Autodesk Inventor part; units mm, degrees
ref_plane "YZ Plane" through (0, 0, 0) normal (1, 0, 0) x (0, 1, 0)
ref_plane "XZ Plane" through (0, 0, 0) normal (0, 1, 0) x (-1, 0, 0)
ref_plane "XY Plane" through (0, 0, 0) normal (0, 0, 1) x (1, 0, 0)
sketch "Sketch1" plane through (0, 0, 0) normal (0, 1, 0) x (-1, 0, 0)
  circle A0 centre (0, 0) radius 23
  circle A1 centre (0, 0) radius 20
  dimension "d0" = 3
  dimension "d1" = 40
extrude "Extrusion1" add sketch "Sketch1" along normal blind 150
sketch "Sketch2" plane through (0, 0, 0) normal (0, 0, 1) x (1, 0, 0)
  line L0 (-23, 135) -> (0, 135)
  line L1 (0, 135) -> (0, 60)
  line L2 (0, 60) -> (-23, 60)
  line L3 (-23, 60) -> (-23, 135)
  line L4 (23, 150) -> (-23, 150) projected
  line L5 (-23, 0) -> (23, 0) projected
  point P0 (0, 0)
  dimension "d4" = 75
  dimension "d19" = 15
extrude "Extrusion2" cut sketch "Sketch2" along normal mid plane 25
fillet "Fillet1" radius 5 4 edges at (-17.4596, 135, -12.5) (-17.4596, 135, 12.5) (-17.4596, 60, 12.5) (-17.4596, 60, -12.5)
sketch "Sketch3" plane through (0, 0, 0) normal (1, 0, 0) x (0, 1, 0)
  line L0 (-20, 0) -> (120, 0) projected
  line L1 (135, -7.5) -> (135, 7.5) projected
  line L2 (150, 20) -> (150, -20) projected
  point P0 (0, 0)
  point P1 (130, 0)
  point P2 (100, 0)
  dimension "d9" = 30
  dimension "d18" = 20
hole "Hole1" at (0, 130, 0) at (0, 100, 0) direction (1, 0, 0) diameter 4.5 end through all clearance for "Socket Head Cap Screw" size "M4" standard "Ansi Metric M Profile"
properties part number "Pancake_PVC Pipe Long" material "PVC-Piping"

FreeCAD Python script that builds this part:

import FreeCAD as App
import Part
import Sketcher
from FreeCAD import Vector


def edges_at(feature, points):
    """Names of the edges that pass closest to the given points."""
    edges = feature.Shape.Edges
    near = lambda p: min(range(len(edges)), key=lambda i: edges[i].distToShape(Part.Vertex(*p))[0])
    return sorted({f"Edge{near(p) + 1}" for p in points})

doc = App.newDocument("Part")
body = doc.addObject("PartDesign::Body", "Body")

sketch1 = body.newObject("Sketcher::SketchObject", "Sketch")
sketch1.AttachmentSupport = (doc.getObject("XZ_Plane"), [""])
sketch1.MapMode = "FlatFace"
sketch1.addGeometry([
    Part.Circle(Vector(0, 0, 0), Vector(0, 0, 1), 23),
    Part.Circle(Vector(0, 0, 0), Vector(0, 0, 1), 20),
], False)
sketch1.addConstraint([
    Sketcher.Constraint("Coincident", 0, 3, -1, 1),
    Sketcher.Constraint("Coincident", 1, 3, -1, 1),
    Sketcher.Constraint("Diameter", 1, 40.0),
    Sketcher.Constraint("Diameter", 0, 46.0),
])
pad1 = body.newObject("PartDesign::Pad", "Pad")
pad1.Profile = sketch1
pad1.Length = 150
pad1.Reversed = True

sketch2 = body.newObject("Sketcher::SketchObject", "Sketch001")
sketch2.AttachmentSupport = (doc.getObject("XY_Plane"), [""])
sketch2.MapMode = "FlatFace"
sketch2.addGeometry([
    Part.LineSegment(Vector(0, 135, 0), Vector(-23, 135, 0)),
    Part.LineSegment(Vector(-23, 135, 0), Vector(-23, 60, 0)),
    Part.LineSegment(Vector(-23, 60, 0), Vector(0, 60, 0)),
    Part.LineSegment(Vector(0, 60, 0), Vector(0, 135, 0)),
], False)
sketch2.addConstraint([
    Sketcher.Constraint("Coincident", 0, 2, 1, 1),
    Sketcher.Constraint("Coincident", 1, 2, 2, 1),
    Sketcher.Constraint("Coincident", 2, 2, 3, 1),
    Sketcher.Constraint("Coincident", 3, 2, 0, 1),
    Sketcher.Constraint("Horizontal", 0),
    Sketcher.Constraint("Vertical", 1),
    Sketcher.Constraint("Horizontal", 2),
    Sketcher.Constraint("Vertical", 3),
    Sketcher.Constraint("PointOnObject", 2, 2, -2),
    Sketcher.Constraint("DistanceY", 1, 2, 1, 1, 75.0),
    Sketcher.Constraint("DistanceX", 0, 2, 0, 1, 23.0),
    Sketcher.Constraint("DistanceY", -1, 1, 0, 2, 135.0),
])
pocket1 = body.newObject("PartDesign::Pocket", "Pocket")
pocket1.Profile = sketch2
pocket1.Length = 25
pocket1.Midplane = True
doc.recompute()

fillet = body.newObject("PartDesign::Fillet", "Fillet")
fillet.Base = (pocket1, edges_at(pocket1, [
    (-17.46, 135, -12.5),
    (-17.46, 135, 12.5),
    (-17.46, 60, 12.5),
    (-17.46, 60, -12.5),
]))
fillet.Radius = 5

sketch3 = body.newObject("Sketcher::SketchObject", "Sketch002")
sketch3.AttachmentSupport = (doc.getObject("YZ_Plane"), [""])
sketch3.MapMode = "FlatFace"
sketch3.addGeometry([
    Part.Circle(Vector(130, 0, 0), Vector(0, 0, 1), 2.2),
    Part.Circle(Vector(100, 0, 0), Vector(0, 0, 1), 2.2),
], False)
sketch3.addConstraint([
    Sketcher.Constraint("Equal", 0, 1),
    Sketcher.Constraint("PointOnObject", 0, 3, -1),
    Sketcher.Constraint("PointOnObject", 1, 3, -1),
    Sketcher.Constraint("Diameter", 0, 4.5),
    Sketcher.Constraint("DistanceX", -1, 1, 0, 3, 130.0),
    Sketcher.Constraint("DistanceX", -1, 1, 1, 3, 100.0),
])
doc.recompute()
hole = body.newObject("PartDesign::Hole", "Hole")
hole.Profile = sketch3
hole.ThreadType = "None"
hole.Diameter = 4.5
hole.DepthType = "ThroughAll"
hole.Reversed = True

doc.recompute()
